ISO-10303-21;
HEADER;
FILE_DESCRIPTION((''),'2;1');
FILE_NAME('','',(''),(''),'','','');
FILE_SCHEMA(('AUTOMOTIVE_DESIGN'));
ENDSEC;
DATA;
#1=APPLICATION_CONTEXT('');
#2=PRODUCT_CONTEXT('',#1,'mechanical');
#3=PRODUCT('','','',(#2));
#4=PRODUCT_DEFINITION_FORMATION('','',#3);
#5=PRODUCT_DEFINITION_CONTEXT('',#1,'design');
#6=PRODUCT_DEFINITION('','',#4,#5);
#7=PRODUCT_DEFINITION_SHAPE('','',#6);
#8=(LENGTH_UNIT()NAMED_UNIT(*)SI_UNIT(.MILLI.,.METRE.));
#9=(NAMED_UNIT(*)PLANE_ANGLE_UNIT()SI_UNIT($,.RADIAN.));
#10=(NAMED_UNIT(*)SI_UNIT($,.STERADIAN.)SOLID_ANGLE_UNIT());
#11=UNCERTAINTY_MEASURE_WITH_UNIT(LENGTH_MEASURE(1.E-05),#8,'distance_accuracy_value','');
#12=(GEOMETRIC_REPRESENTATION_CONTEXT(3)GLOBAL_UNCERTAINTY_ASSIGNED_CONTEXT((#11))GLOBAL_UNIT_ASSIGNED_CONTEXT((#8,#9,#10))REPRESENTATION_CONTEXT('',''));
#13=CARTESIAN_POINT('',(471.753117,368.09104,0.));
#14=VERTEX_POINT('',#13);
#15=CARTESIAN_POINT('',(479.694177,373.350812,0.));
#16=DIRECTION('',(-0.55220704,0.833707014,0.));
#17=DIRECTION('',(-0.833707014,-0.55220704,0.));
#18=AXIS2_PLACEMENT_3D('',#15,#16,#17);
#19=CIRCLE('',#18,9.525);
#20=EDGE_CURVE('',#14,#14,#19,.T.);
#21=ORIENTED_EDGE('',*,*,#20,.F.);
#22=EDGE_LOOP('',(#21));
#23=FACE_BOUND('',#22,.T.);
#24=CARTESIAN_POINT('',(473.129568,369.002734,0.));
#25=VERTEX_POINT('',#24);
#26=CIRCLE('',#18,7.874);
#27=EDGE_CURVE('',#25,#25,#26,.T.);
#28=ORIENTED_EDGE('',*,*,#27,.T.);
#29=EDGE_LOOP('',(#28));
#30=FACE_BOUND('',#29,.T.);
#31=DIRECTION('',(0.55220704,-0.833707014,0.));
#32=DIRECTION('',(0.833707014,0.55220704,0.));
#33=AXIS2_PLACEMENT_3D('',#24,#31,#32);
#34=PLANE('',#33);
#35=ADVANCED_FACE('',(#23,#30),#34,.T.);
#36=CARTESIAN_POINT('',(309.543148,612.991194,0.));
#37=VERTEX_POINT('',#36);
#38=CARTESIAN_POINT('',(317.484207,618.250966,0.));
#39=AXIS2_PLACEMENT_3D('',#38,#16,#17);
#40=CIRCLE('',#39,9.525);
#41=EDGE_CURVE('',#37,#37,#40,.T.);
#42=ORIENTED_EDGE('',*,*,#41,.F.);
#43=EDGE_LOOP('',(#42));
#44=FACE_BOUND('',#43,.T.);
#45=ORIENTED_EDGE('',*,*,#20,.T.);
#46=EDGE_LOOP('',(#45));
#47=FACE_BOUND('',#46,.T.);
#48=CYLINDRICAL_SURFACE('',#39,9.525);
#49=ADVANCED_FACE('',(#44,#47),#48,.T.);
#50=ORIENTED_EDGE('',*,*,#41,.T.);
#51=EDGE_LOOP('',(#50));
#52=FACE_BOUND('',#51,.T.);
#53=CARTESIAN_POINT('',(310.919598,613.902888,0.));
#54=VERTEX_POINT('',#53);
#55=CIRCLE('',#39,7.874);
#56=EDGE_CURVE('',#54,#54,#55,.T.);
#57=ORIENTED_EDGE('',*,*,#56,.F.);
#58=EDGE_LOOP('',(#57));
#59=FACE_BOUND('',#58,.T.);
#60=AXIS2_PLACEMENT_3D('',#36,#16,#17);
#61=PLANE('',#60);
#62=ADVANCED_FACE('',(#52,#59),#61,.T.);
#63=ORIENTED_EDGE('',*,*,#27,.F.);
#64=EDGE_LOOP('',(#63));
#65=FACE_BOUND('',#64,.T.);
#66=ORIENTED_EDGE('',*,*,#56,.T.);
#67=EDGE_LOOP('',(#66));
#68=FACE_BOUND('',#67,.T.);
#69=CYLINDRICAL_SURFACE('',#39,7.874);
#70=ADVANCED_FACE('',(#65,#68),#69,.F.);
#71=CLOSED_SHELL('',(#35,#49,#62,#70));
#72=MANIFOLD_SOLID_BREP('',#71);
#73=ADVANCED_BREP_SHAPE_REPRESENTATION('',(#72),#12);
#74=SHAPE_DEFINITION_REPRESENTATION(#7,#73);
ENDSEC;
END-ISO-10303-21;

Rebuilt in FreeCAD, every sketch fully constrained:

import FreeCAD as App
import Part
import Sketcher
Q = App.Units.Quantity

doc = App.newDocument("Part")
body = doc.addObject("PartDesign::Body", "Body")

# Sketch on XY plane
sketch1 = body.newObject("Sketcher::SketchObject", "Sketch")
sketch1.AttachmentSupport = (doc.getObject("XY_Plane"), [""])
sketch1.MapMode = "FlatFace"
sketch1.addGeometry([
    Part.LineSegment(App.Vector(471.8, 368.1, 0), App.Vector(473.1, 369, 0)),
    Part.LineSegment(App.Vector(473.1, 369, 0), App.Vector(310.9, 613.9, 0)),
    Part.LineSegment(App.Vector(310.9, 613.9, 0), App.Vector(309.5, 613, 0)),
    Part.LineSegment(App.Vector(309.5, 613, 0), App.Vector(471.8, 368.1, 0)),
], False)
sketch1.addGeometry(Part.LineSegment(App.Vector(317.5, 618.3, 0), App.Vector(479.7, 373.4, 0)), True)  # axis
sketch1.addConstraint([
    Sketcher.Constraint("Coincident", 0, 2, 1, 1),
    Sketcher.Constraint("Coincident", 1, 2, 2, 1),
    Sketcher.Constraint("Coincident", 2, 2, 3, 1),
    Sketcher.Constraint("Coincident", 3, 2, 0, 1),
    Sketcher.Constraint("Perpendicular", 0, 1),
    Sketcher.Constraint("Perpendicular", 1, 2),
    Sketcher.Constraint("Perpendicular", 2, 3),
    Sketcher.Constraint("Parallel", 3, 4),
    Sketcher.Constraint("Equal", 3, 4),
    Sketcher.Constraint("Distance", 0, Q("0.065 in")),
    Sketcher.Constraint("Distance", 1, Q("11.5649001 in")),
    Sketcher.Constraint("DistanceX", -1, 1, 1, 2, Q("310.919598 mm")),
    Sketcher.Constraint("DistanceY", -1, 1, 1, 2, Q("613.902888 mm")),
    Sketcher.Constraint("DistanceY", -1, 1, 3, 2, Q("368.09104 mm")),
    Sketcher.Constraint("DistanceX", 1, 2, 4, 1, Q("6.564609 mm")),
    Sketcher.Constraint("DistanceY", 1, 2, 4, 1, Q("4.348078 mm")),
])
revolution = body.newObject("PartDesign::Revolution", "Revolution")
revolution.Profile = sketch1
revolution.ReferenceAxis = (sketch1, ["Axis0"])
revolution.Angle = 360

doc.recompute()
